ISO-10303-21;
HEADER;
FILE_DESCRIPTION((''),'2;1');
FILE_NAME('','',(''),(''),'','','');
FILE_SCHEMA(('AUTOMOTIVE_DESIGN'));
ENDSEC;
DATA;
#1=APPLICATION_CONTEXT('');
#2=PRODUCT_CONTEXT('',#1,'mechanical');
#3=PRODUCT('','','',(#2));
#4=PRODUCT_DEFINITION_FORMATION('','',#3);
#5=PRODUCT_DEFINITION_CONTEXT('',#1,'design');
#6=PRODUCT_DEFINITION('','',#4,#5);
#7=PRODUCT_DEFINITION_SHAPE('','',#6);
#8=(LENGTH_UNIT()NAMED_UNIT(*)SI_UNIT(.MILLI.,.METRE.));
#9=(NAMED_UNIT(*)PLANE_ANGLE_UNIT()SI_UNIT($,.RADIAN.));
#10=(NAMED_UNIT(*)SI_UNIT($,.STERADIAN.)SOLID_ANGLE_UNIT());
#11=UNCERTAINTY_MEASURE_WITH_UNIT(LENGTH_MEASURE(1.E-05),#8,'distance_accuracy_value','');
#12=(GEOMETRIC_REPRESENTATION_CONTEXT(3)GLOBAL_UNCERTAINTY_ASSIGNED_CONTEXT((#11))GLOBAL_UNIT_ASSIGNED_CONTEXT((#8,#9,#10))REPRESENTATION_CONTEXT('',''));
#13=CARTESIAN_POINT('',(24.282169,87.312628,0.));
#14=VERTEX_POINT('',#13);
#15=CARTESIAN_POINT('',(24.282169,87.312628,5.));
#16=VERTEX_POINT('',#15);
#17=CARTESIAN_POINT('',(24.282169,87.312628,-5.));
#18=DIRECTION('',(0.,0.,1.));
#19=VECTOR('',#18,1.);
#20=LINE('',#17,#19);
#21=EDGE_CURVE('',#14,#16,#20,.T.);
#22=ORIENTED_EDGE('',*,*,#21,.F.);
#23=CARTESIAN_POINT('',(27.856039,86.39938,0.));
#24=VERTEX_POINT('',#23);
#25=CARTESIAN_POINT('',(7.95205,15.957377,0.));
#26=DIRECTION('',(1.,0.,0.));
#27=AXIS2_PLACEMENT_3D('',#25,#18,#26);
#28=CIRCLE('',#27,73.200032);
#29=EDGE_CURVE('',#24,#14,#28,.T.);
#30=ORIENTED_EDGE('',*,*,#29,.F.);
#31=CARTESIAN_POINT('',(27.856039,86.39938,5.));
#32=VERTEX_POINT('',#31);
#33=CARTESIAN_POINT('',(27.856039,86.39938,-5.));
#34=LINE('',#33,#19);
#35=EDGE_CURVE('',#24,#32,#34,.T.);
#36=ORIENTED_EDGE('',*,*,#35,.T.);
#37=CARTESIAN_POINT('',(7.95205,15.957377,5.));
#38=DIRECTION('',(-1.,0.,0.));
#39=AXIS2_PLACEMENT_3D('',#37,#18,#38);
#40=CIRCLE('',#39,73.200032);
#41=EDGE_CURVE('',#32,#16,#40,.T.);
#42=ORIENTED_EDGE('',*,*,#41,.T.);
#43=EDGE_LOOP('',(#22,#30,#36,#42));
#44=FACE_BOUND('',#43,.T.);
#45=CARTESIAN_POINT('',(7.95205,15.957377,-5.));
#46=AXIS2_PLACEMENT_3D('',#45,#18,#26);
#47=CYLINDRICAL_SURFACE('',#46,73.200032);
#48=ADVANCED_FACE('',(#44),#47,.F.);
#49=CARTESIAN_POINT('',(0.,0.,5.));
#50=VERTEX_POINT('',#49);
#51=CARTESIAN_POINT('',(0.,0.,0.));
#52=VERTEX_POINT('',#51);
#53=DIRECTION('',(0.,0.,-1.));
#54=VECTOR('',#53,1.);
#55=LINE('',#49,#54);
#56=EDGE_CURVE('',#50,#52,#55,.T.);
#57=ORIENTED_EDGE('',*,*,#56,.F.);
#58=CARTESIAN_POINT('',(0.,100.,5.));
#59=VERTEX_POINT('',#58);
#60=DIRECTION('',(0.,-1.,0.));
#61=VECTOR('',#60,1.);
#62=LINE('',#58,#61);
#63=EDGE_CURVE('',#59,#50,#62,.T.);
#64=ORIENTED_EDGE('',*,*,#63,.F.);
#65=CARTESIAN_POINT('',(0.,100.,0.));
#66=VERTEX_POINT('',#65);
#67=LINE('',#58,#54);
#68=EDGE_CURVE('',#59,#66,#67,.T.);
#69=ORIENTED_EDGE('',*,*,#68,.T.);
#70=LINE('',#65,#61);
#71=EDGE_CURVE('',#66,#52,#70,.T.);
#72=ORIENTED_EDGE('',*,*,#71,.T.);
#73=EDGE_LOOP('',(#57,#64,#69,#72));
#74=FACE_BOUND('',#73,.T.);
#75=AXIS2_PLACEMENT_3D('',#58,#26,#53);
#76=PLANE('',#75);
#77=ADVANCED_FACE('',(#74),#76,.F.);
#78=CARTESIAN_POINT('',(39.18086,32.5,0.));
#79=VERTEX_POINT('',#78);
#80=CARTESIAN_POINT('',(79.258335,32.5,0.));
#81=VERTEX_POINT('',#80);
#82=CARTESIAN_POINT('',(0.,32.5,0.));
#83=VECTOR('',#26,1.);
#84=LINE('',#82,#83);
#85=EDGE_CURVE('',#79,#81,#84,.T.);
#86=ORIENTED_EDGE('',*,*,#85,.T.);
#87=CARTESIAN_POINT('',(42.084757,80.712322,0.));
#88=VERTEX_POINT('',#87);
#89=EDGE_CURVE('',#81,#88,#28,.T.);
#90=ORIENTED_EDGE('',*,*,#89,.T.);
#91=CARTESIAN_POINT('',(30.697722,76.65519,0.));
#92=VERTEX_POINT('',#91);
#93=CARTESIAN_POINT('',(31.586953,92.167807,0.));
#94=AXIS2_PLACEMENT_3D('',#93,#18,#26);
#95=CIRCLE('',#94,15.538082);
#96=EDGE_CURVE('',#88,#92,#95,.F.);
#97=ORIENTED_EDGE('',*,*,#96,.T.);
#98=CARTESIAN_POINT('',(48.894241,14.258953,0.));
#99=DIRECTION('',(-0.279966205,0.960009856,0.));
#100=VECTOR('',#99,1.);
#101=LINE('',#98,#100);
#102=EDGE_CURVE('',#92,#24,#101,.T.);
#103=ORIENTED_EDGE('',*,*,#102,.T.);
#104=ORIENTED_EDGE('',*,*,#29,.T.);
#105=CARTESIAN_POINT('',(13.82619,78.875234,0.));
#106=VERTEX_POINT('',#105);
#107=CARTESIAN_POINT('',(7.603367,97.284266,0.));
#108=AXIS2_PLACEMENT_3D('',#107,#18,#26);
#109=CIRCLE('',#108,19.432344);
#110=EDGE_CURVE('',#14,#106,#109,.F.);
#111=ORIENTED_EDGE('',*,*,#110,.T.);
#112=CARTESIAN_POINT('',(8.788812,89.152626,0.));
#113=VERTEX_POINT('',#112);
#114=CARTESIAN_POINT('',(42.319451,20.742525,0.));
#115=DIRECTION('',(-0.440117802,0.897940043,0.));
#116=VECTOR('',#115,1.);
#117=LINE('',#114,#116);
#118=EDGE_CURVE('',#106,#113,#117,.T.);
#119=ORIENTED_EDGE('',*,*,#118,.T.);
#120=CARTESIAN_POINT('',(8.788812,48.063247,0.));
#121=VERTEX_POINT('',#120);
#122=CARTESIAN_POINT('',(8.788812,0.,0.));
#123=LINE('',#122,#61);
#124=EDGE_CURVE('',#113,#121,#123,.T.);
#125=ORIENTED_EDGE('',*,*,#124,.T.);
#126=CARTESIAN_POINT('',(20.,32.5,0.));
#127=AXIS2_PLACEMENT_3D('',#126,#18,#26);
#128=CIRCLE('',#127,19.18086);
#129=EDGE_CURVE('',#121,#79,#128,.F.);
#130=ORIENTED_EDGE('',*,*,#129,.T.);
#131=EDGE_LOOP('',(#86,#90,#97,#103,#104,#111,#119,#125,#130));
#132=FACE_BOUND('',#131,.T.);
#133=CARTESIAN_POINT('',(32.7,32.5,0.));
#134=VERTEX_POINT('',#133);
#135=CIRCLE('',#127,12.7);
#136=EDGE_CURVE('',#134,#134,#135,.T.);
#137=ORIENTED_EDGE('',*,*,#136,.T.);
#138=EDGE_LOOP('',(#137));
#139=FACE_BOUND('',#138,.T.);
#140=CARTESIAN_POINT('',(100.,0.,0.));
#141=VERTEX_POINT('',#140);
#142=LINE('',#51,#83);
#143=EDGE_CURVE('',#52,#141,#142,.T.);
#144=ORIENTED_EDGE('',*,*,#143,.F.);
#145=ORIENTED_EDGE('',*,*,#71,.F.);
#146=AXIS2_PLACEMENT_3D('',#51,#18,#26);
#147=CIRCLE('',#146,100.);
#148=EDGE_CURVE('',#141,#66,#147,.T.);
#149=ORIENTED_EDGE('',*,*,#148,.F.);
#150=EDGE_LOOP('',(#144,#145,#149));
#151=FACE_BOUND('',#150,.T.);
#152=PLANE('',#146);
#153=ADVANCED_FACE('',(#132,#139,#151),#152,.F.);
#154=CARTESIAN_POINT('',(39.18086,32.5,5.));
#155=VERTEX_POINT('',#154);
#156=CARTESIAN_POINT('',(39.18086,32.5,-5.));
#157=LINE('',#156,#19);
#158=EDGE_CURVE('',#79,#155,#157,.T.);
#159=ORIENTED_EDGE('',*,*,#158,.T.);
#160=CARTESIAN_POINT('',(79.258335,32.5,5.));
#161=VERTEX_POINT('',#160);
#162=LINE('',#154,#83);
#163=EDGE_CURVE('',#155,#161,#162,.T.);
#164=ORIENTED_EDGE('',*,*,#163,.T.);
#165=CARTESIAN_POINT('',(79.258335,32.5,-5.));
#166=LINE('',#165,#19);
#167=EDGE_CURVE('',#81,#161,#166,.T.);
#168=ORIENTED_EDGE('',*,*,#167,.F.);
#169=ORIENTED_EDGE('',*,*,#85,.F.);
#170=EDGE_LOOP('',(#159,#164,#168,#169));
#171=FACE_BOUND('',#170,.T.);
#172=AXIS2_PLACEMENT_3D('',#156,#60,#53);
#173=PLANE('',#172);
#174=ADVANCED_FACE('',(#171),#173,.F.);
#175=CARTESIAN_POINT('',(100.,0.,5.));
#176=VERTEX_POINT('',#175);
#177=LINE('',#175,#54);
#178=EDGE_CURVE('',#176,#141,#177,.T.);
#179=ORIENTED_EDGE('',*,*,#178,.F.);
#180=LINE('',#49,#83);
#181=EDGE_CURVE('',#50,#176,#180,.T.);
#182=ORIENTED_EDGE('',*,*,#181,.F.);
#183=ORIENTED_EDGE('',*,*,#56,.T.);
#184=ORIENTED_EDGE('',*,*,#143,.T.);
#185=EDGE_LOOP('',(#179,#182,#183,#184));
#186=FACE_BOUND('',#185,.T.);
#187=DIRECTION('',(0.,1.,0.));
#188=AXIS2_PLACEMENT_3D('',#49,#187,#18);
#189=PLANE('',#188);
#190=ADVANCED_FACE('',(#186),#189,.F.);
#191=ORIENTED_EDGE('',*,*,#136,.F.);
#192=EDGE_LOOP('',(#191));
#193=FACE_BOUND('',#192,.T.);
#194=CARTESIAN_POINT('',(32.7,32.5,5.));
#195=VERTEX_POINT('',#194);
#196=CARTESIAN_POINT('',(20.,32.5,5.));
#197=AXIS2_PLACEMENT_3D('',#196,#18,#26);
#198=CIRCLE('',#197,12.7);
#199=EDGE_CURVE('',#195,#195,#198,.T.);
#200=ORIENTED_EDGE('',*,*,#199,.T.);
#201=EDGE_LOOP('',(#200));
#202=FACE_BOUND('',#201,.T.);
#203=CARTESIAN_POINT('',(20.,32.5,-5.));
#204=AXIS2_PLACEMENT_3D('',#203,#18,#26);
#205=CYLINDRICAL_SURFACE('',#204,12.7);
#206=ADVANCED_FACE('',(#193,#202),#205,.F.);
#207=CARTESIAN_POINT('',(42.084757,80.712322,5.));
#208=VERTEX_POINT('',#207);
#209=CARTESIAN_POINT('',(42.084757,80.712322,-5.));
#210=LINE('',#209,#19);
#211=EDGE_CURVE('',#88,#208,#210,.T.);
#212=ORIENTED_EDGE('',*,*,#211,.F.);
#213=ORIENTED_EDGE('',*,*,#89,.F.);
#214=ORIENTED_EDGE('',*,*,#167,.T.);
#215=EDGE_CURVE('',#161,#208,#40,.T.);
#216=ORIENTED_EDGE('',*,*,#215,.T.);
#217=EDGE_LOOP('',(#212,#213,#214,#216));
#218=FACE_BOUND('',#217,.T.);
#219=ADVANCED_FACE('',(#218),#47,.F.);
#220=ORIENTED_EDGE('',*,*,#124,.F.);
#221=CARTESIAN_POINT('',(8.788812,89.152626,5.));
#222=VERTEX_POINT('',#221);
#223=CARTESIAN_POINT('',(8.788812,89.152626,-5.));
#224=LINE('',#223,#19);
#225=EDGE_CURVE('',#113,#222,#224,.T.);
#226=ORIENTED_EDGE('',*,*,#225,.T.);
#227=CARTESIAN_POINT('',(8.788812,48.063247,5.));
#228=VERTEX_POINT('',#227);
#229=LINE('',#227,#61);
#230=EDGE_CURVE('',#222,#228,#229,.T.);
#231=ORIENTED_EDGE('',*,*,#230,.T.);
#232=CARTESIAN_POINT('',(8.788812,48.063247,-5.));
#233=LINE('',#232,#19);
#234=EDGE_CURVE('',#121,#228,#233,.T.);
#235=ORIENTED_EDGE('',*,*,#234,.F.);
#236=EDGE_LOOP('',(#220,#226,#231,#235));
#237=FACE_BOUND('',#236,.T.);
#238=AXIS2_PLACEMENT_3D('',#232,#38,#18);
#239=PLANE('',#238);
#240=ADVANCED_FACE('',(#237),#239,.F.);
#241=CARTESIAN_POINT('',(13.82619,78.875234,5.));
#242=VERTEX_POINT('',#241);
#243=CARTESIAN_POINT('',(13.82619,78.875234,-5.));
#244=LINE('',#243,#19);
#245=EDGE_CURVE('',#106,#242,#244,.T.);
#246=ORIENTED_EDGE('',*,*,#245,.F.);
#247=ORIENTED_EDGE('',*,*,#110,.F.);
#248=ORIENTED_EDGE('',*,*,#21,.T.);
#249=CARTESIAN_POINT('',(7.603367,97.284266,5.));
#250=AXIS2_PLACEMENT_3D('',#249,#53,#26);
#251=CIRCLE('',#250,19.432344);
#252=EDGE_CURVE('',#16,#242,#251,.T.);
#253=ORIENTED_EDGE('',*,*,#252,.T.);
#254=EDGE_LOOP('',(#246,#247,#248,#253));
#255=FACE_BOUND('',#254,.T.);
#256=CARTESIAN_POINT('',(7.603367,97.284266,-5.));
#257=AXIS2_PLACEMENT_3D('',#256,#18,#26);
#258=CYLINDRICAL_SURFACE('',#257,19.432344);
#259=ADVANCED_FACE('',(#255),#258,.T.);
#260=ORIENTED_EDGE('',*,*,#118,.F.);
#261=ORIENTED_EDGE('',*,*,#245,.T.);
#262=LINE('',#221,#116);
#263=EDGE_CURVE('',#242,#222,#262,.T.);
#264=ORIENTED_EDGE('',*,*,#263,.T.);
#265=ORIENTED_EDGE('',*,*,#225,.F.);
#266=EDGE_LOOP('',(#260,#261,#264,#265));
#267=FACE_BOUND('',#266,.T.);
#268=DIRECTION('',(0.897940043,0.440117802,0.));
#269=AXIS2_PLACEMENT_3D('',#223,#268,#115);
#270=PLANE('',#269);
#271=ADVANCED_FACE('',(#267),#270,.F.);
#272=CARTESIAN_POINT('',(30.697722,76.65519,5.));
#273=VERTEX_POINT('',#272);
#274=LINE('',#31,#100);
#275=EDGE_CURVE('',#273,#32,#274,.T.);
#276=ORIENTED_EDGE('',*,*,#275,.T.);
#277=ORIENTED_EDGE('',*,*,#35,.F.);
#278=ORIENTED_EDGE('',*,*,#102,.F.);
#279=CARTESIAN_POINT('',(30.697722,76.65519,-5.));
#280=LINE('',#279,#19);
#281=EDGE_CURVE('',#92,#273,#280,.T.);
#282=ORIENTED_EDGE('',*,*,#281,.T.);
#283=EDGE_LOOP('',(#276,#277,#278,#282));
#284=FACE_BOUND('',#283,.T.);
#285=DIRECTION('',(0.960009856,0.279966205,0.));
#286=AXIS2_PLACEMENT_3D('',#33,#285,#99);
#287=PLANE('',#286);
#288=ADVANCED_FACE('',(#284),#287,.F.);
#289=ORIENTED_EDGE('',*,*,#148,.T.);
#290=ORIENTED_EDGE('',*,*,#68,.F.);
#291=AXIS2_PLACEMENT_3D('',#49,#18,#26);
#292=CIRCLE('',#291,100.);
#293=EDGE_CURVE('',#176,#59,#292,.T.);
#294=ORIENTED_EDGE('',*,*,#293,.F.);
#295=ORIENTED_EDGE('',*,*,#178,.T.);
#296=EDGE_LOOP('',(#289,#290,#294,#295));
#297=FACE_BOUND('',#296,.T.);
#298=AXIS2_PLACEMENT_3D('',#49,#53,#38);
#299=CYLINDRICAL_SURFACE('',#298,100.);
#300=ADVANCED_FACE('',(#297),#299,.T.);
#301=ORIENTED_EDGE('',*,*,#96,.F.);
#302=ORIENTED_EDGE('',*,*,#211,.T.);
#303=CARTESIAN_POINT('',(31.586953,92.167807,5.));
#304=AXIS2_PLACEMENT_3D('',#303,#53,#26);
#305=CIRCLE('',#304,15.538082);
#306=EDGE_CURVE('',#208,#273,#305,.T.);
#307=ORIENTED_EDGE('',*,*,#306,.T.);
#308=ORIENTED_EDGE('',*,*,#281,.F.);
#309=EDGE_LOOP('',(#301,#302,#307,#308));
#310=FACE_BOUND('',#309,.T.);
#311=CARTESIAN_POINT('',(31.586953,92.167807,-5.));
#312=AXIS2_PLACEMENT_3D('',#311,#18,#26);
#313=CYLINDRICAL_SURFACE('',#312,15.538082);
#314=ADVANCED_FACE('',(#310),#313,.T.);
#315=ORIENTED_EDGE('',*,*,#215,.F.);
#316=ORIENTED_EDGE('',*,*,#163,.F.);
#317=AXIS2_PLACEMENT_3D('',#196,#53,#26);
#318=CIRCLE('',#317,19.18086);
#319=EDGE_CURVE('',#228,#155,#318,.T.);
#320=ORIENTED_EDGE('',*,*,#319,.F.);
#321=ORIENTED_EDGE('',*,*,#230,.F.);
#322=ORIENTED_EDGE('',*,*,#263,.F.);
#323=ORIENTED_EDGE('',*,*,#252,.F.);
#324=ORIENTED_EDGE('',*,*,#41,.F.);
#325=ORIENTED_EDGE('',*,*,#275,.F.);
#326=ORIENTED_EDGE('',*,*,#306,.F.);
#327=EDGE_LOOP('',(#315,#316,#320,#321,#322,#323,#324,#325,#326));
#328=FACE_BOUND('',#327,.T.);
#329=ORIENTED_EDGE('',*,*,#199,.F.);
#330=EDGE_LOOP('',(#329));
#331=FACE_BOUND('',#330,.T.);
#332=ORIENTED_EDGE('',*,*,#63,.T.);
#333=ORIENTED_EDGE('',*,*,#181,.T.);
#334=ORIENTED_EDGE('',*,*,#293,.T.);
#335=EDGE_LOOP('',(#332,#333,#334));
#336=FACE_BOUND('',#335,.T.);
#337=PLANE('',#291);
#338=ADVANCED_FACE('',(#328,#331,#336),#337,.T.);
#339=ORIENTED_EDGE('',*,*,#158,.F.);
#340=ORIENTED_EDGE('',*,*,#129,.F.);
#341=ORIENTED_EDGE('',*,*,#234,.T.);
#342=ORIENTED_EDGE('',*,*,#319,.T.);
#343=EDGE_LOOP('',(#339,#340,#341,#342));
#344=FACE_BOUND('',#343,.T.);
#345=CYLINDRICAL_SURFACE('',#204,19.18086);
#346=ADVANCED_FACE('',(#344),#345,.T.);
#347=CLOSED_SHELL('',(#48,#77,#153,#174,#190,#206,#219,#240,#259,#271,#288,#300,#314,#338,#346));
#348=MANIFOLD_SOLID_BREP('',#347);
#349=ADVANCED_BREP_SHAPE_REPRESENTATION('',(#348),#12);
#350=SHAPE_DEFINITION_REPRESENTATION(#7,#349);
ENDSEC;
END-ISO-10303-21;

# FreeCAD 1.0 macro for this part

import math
import FreeCAD as App
import Part
import Sketcher

doc = App.newDocument("Part")
body = doc.addObject("PartDesign::Body", "Body")

sketch1 = doc.addObject("Sketcher::SketchObject", "Sketch")
body.addObject(sketch1)
sketch1.AttachmentSupport = (doc.XY_Plane, [""])
sketch1.MapMode = "FlatFace"
sketch1.addGeometry([
    Part.LineSegment(App.Vector(0, 100, 0), App.Vector(0, 0, 0)),
    Part.LineSegment(App.Vector(0, 0, 0), App.Vector(100, 0, 0)),
    Part.ArcOfCircle(Part.Circle(App.Vector(0, 0, 0), App.Vector(0, 0, 1), 100), math.radians(0), math.radians(90)),
], False)
sketch1.addConstraint([
    Sketcher.Constraint("Coincident", 0, 2, 1, 1),
    Sketcher.Constraint("Coincident", 1, 2, 2, 1),
    Sketcher.Constraint("Coincident", 2, 2, 0, 1),
    Sketcher.Constraint("Vertical", 0),
    Sketcher.Constraint("Horizontal", 1),
    Sketcher.Constraint("Coincident", 2, 3, -1, 1),
    Sketcher.Constraint("Coincident", 0, 2, -1, 1),
    Sketcher.Constraint("Radius", 2, 100.0),
])
pad1 = doc.addObject("PartDesign::Pad", "Pad")
body.addObject(pad1)
pad1.Profile = sketch1
pad1.Length = 5

sketch2 = doc.addObject("Sketcher::SketchObject", "Sketch001")
body.addObject(sketch2)
sketch2.AttachmentSupport = (doc.XY_Plane, [""])
sketch2.MapMode = "FlatFace"
sketch2.AttachmentOffset = App.Placement(App.Vector(0, 0, 5), App.Rotation())
sketch2.addGeometry(Part.Circle(App.Vector(20, 32, 0), App.Vector(0, 0, 1), 13), False)
sketch2.addConstraint([
    Sketcher.Constraint("Diameter", 0, 25.4),
    Sketcher.Constraint("DistanceX", -1, 1, 0, 3, 20.0),
    Sketcher.Constraint("DistanceY", -1, 1, 0, 3, 32.5),
])
pocket1 = doc.addObject("PartDesign::Pocket", "Pocket")
body.addObject(pocket1)
pocket1.Profile = sketch2
pocket1.Length = 10

sketch3 = doc.addObject("Sketcher::SketchObject", "Sketch002")
body.addObject(sketch3)
sketch3.AttachmentSupport = (doc.XY_Plane, [""])
sketch3.MapMode = "FlatFace"
sketch3.AttachmentOffset = App.Placement(App.Vector(0, 0, 5), App.Rotation())
sketch3.addGeometry([
    Part.LineSegment(App.Vector(8.8, 89.2, 0), App.Vector(8.8, 48.1, 0)),
    Part.ArcOfCircle(Part.Circle(App.Vector(20, 32.5, 0), App.Vector(0, 0, 1), 19.2), math.radians(0), math.radians(126)),
    Part.LineSegment(App.Vector(39.2, 32.5, 0), App.Vector(79.3, 32.5, 0)),
    Part.ArcOfCircle(Part.Circle(App.Vector(8, 16, 0), App.Vector(0, 0, 1), 73.2), math.radians(13), math.radians(62)),
    Part.ArcOfCircle(Part.Circle(App.Vector(31.6, 92.2, 0), App.Vector(0, 0, 1), 15.5), math.radians(-93), math.radians(-47)),
    Part.LineSegment(App.Vector(30.7, 76.7, 0), App.Vector(27.9, 86.4, 0)),
    Part.ArcOfCircle(Part.Circle(App.Vector(8, 16, 0), App.Vector(0, 0, 1), 73.2), math.radians(74.22), math.radians(77.11)),
    Part.ArcOfCircle(Part.Circle(App.Vector(7.6, 97.3, 0), App.Vector(0, 0, 1), 19.4), math.radians(-71), math.radians(-31)),
    Part.LineSegment(App.Vector(13.8, 78.9, 0), App.Vector(8.8, 89.2, 0)),
], False)
sketch3.addConstraint([
    Sketcher.Constraint("Coincident", 0, 2, 1, 2),
    Sketcher.Constraint("Coincident", 1, 1, 2, 1),
    Sketcher.Constraint("Coincident", 2, 2, 3, 1),
    Sketcher.Constraint("Coincident", 3, 2, 4, 2),
    Sketcher.Constraint("Coincident", 4, 1, 5, 1),
    Sketcher.Constraint("Coincident", 5, 2, 6, 1),
    Sketcher.Constraint("Coincident", 6, 2, 7, 2),
    Sketcher.Constraint("Coincident", 7, 1, 8, 1),
    Sketcher.Constraint("Coincident", 8, 2, 0, 1),
    Sketcher.Constraint("Vertical", 0),
    Sketcher.Constraint("Horizontal", 2),
    Sketcher.Constraint("Coincident", 6, 3, 3, 3),
    Sketcher.Constraint("Equal", 3, 6),
    Sketcher.Constraint("DistanceX", -1, 1, 1, 3, 20.0),
    Sketcher.Constraint("DistanceY", -1, 1, 1, 3, 32.5),
    Sketcher.Constraint("DistanceY", -1, 1, 1, 1, 32.5),
    Sketcher.Constraint("Radius", 1, 19.18086),
    Sketcher.Constraint("Radius", 3, 73.200032),
    Sketcher.Constraint("DistanceY", 6, 2, 8, 2, 1.839998),
    Sketcher.Constraint("Radius", 4, 15.538082),
    Sketcher.Constraint("Radius", 7, 19.432344),
    Sketcher.Constraint("DistanceY", 0, 2, 0, 1, 41.089379),
    Sketcher.Constraint("DistanceX", 7, 3, 6, 2, 16.678802),
    Sketcher.Constraint("Distance", 8, 11.445522),
    Sketcher.Constraint("DistanceX", 2, 1, 2, 2, 40.077475),
    Sketcher.Constraint("DistanceX", -1, 1, 3, 3, 7.95205),
    Sketcher.Constraint("DistanceY", -1, 1, 4, 1, 76.65519),
    Sketcher.Constraint("DistanceX", -1, 1, 5, 2, 27.856039),
    Sketcher.Constraint("DistanceX", -1, 1, 6, 2, 24.282169),
    Sketcher.Constraint("DistanceY", 3, 3, 4, 3, 76.21043),
    Sketcher.Constraint("DistanceX", 0, 2, 4, 3, 22.798141),
])
pocket2 = doc.addObject("PartDesign::Pocket", "Pocket001")
body.addObject(pocket2)
pocket2.Profile = sketch3
pocket2.Length = 10

doc.recompute()
